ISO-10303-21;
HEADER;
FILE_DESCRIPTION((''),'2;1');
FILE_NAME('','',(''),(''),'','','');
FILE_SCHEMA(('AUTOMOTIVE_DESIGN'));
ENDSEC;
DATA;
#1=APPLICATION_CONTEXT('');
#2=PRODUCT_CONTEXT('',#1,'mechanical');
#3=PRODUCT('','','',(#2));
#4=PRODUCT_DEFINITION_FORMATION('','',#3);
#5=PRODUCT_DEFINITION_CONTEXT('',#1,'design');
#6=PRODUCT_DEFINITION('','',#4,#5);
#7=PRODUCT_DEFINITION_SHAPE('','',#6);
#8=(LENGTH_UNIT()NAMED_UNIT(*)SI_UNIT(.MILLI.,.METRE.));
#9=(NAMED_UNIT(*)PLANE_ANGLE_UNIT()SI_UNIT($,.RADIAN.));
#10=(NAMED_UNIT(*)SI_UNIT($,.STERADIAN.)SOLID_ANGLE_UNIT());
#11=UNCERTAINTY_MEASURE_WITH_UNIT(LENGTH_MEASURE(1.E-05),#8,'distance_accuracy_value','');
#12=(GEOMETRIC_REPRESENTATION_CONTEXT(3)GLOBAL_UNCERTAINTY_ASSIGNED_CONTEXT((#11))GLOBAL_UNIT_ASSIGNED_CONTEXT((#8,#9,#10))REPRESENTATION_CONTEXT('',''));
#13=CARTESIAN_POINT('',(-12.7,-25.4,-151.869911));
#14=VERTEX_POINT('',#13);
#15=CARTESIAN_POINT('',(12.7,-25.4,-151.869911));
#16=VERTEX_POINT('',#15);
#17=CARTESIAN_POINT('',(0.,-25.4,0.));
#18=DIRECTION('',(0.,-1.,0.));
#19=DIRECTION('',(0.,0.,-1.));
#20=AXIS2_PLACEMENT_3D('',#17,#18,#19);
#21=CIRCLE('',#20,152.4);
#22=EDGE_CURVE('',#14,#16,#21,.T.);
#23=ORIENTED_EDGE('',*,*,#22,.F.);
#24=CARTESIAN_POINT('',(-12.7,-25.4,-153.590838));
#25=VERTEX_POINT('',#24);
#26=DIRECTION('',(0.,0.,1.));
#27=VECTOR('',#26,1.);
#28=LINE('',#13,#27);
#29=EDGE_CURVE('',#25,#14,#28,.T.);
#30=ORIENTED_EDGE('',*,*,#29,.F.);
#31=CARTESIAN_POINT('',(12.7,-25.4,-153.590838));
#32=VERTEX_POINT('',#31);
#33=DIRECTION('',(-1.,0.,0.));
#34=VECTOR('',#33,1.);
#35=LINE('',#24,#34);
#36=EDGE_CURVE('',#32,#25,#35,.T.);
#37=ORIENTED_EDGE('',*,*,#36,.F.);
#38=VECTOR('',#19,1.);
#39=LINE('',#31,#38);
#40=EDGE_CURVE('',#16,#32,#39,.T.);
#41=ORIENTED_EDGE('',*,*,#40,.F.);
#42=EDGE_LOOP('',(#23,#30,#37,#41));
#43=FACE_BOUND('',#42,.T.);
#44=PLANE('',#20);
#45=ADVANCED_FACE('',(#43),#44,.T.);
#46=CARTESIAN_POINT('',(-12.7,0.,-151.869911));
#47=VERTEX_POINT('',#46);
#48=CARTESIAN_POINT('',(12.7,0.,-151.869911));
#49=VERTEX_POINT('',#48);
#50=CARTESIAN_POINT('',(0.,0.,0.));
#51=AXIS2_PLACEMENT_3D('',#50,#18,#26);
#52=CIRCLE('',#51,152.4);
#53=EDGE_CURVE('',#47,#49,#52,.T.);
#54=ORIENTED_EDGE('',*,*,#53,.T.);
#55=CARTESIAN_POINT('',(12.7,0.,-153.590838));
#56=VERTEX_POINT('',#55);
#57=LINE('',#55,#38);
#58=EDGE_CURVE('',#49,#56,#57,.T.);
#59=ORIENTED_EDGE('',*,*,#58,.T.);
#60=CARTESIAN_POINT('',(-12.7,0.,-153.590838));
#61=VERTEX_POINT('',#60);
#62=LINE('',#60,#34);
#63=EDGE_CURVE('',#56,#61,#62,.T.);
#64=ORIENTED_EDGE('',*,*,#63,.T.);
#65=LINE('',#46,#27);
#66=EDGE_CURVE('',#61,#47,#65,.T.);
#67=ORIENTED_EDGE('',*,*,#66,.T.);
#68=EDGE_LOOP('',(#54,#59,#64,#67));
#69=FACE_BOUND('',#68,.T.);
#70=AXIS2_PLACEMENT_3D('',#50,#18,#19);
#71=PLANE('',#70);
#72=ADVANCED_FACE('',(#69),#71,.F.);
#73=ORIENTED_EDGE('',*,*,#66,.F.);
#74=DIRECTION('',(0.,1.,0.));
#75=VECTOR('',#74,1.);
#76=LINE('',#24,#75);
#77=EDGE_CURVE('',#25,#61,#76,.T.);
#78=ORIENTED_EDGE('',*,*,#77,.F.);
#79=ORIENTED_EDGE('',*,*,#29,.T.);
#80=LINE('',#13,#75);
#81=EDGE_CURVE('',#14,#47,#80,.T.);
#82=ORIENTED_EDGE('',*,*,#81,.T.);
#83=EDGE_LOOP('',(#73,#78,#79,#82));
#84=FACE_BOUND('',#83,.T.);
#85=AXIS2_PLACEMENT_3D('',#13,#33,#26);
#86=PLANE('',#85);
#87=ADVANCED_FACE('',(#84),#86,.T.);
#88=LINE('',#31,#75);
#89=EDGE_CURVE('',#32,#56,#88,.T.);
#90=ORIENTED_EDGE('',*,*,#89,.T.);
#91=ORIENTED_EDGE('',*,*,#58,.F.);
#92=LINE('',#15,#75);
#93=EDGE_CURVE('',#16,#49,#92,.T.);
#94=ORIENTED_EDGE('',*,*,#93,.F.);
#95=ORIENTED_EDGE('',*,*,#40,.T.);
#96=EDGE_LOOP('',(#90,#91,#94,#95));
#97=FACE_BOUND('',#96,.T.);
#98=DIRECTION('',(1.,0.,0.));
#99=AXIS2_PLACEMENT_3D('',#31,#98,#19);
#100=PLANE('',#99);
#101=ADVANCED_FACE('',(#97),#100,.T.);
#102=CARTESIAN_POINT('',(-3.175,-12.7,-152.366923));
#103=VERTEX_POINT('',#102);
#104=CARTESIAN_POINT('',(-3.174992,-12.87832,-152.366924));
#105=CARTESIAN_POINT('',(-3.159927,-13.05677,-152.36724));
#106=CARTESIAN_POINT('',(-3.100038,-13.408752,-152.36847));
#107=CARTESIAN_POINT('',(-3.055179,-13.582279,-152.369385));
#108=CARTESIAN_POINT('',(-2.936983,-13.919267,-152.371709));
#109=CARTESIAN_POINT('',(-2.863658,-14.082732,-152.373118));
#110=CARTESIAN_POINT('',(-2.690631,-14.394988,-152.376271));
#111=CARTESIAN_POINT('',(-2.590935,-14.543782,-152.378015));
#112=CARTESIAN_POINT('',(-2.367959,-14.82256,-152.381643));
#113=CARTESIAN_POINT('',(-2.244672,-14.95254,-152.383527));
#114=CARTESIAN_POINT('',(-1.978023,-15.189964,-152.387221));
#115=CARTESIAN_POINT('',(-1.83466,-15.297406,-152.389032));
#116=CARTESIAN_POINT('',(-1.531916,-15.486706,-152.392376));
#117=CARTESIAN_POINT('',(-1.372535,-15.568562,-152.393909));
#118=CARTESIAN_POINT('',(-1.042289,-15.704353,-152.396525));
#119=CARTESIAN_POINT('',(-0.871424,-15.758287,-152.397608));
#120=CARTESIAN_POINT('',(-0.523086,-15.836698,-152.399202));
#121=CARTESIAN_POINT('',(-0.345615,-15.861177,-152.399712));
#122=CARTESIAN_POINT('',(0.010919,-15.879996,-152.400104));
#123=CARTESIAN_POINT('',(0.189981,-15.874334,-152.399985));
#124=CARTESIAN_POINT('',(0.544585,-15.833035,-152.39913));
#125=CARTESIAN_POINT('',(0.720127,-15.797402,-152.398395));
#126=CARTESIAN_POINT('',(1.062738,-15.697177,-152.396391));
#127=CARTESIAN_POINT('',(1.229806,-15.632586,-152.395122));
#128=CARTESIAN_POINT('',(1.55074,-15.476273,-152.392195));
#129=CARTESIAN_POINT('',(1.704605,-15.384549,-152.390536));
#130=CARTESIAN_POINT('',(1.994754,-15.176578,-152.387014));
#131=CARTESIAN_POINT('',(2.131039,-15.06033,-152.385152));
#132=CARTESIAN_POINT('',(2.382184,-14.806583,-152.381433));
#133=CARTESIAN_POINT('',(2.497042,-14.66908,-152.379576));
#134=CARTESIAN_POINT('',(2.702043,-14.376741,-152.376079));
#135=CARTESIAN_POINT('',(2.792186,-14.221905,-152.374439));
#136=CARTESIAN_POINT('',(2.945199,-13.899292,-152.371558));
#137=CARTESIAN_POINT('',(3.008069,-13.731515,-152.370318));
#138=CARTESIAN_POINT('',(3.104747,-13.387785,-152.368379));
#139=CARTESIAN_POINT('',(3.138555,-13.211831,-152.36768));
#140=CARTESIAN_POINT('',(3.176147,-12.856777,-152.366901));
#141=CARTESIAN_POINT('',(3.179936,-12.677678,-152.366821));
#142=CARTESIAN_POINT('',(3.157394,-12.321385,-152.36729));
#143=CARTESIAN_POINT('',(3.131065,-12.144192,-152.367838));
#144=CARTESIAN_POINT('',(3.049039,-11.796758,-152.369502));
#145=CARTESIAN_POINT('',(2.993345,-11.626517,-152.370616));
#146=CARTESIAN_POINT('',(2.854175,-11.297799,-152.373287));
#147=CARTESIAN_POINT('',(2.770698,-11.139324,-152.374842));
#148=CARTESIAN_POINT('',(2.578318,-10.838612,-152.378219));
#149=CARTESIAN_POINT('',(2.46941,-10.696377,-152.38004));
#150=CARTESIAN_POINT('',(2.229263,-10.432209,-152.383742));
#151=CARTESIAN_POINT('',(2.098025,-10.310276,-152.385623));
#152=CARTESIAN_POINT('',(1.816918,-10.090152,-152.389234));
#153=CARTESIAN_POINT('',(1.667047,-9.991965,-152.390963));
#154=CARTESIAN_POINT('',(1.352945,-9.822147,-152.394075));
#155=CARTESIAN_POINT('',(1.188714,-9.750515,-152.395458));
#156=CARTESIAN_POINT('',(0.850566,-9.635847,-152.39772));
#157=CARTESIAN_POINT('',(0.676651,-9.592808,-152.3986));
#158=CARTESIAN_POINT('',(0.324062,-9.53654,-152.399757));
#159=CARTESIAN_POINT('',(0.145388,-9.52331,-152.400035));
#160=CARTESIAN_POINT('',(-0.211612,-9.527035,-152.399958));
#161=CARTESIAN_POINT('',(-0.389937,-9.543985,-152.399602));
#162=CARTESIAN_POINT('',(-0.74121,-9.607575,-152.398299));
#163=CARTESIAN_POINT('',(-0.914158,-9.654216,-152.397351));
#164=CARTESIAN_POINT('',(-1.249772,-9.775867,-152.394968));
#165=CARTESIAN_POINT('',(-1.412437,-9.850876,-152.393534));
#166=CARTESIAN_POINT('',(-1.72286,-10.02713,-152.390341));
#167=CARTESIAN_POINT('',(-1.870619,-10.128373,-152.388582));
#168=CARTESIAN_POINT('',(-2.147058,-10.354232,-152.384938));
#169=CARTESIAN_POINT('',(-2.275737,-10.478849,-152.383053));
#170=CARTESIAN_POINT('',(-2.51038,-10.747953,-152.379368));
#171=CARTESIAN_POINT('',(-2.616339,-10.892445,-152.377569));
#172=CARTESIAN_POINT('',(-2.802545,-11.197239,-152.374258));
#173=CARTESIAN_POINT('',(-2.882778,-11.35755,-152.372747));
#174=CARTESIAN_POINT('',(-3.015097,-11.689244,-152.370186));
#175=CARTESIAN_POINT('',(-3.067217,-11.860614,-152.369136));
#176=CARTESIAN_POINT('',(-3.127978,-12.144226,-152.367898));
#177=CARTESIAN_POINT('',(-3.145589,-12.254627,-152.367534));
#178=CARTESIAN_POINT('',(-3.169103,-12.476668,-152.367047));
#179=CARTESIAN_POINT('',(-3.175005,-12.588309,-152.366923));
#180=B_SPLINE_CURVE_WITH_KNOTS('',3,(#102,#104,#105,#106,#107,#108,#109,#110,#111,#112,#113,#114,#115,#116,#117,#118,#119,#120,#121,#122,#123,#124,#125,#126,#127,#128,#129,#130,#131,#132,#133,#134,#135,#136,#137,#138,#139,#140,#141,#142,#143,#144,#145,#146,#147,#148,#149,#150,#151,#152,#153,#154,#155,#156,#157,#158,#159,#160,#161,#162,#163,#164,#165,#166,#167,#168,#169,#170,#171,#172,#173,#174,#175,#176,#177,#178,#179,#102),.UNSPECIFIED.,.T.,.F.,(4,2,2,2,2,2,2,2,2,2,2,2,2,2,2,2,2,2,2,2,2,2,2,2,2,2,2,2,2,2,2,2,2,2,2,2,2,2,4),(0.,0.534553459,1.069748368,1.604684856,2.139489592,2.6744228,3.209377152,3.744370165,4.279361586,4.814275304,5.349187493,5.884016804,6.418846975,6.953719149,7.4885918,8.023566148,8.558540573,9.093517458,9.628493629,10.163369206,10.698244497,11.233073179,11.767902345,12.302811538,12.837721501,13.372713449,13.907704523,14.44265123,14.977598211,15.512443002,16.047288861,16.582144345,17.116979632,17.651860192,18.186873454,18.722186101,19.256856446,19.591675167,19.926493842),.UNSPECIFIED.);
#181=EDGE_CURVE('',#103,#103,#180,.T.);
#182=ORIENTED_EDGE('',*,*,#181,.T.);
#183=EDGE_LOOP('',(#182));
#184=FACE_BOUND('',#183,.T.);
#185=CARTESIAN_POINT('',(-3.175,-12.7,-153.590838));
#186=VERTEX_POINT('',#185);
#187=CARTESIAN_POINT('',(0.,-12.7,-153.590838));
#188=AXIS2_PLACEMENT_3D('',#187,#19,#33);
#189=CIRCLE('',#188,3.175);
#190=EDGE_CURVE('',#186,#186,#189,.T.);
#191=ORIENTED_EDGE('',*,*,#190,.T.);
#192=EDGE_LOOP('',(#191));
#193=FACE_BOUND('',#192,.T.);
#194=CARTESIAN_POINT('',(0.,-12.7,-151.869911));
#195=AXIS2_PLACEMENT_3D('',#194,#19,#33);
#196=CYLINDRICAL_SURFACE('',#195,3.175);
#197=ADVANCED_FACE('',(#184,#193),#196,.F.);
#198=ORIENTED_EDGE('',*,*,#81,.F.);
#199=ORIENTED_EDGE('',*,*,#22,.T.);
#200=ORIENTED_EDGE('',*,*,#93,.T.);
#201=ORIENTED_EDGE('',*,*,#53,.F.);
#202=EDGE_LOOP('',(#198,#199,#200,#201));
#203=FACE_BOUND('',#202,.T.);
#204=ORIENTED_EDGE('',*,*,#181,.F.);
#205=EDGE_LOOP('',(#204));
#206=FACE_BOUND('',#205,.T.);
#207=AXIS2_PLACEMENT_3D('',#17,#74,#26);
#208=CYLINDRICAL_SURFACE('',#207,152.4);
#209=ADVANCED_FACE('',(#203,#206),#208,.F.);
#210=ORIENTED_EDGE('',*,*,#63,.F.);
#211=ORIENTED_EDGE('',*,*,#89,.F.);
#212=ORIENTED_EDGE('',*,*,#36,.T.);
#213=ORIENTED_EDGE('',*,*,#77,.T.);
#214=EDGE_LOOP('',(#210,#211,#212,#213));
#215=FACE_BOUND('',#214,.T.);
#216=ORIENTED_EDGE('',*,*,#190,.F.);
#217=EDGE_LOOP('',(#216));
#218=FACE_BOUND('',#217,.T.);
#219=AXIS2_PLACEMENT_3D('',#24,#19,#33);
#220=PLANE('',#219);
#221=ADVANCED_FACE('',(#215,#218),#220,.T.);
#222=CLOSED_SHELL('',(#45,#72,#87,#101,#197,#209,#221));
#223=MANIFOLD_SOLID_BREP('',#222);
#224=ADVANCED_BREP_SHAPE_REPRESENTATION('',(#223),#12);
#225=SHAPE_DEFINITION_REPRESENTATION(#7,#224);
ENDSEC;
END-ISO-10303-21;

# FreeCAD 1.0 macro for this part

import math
import FreeCAD as App
import Part
import Sketcher

V = App.Vector
Q = App.Units.Quantity

doc = App.newDocument("Part")
body = doc.addObject("PartDesign::Body", "Body")

sketch1 = body.newObject("Sketcher::SketchObject", "Sketch")
sketch1.AttachmentSupport = (doc.getObject("XZ_Plane"), [""])
sketch1.MapMode = "FlatFace"
sketch1.addGeometry(Part.LineSegment(V(-12.7, -153.6, 0), V(-12.7, -151.9, 0)), False)
sketch1.addGeometry(Part.ArcOfCircle(Part.Circle(V(0, 0, 0), V(0, 0, 1), 152.4), math.radians(-94.78), math.radians(-90)), False)
sketch1.addGeometry(Part.ArcOfCircle(Part.Circle(V(0, 0, 0), V(0, 0, 1), 152.4), math.radians(-90), math.radians(-85.22)), False)
sketch1.addGeometry(Part.LineSegment(V(12.7, -151.9, 0), V(12.7, -153.6, 0)), False)
sketch1.addGeometry(Part.LineSegment(V(12.7, -153.6, 0), V(-12.7, -153.6, 0)), False)
sketch1.addConstraint(Sketcher.Constraint("Coincident", 0, 2, 1, 1))
sketch1.addConstraint(Sketcher.Constraint("Tangent", 1, 2, 2, 1))
sketch1.addConstraint(Sketcher.Constraint("Coincident", 2, 2, 3, 1))
sketch1.addConstraint(Sketcher.Constraint("Coincident", 3, 2, 4, 1))
sketch1.addConstraint(Sketcher.Constraint("Coincident", 4, 2, 0, 1))
sketch1.addConstraint(Sketcher.Constraint("Vertical", 0))
sketch1.addConstraint(Sketcher.Constraint("Vertical", 3))
sketch1.addConstraint(Sketcher.Constraint("Horizontal", 4))
sketch1.addConstraint(Sketcher.Constraint("Coincident", 1, 3, -1, 1))
sketch1.addConstraint(Sketcher.Constraint("Equal", 1, 2))
sketch1.addConstraint(Sketcher.Constraint("PointOnObject", 1, 2, -2))
sketch1.addConstraint(Sketcher.Constraint("Horizontal", 0, 2, 2, 2))
sketch1.addConstraint(Sketcher.Constraint("Radius", 1, Q("6 in")))
sketch1.addConstraint(Sketcher.Constraint("DistanceX", 4, 2, 4, 1, Q("1 in")))
sketch1.addConstraint(Sketcher.Constraint("DistanceY", 0, 1, 0, 2, Q("1.720926 mm")))
pad1 = body.newObject("PartDesign::Pad", "Pad")
pad1.Profile = sketch1
pad1.Length = Q("1 in")

sketch2 = body.newObject("Sketcher::SketchObject", "Sketch001")
sketch2.AttachmentSupport = (doc.getObject("XY_Plane"), [""])
sketch2.MapMode = "FlatFace"
sketch2.AttachmentOffset = App.Placement(V(0, 0, -153.590838), App.Rotation())
sketch2.addGeometry(Part.Circle(V(0, -12.7, 0), V(0, 0, 1), 3.2), False)
sketch2.addConstraint(Sketcher.Constraint("PointOnObject", 0, 3, -2))
sketch2.addConstraint(Sketcher.Constraint("Diameter", 0, Q("0.25 in")))
sketch2.addConstraint(Sketcher.Constraint("DistanceY", 0, 3, -1, 1, Q("0.5 in")))
pocket1 = body.newObject("PartDesign::Pocket", "Pocket")
pocket1.Profile = sketch2
pocket1.Length = 1.720926
pocket1.Reversed = True

doc.recompute()
